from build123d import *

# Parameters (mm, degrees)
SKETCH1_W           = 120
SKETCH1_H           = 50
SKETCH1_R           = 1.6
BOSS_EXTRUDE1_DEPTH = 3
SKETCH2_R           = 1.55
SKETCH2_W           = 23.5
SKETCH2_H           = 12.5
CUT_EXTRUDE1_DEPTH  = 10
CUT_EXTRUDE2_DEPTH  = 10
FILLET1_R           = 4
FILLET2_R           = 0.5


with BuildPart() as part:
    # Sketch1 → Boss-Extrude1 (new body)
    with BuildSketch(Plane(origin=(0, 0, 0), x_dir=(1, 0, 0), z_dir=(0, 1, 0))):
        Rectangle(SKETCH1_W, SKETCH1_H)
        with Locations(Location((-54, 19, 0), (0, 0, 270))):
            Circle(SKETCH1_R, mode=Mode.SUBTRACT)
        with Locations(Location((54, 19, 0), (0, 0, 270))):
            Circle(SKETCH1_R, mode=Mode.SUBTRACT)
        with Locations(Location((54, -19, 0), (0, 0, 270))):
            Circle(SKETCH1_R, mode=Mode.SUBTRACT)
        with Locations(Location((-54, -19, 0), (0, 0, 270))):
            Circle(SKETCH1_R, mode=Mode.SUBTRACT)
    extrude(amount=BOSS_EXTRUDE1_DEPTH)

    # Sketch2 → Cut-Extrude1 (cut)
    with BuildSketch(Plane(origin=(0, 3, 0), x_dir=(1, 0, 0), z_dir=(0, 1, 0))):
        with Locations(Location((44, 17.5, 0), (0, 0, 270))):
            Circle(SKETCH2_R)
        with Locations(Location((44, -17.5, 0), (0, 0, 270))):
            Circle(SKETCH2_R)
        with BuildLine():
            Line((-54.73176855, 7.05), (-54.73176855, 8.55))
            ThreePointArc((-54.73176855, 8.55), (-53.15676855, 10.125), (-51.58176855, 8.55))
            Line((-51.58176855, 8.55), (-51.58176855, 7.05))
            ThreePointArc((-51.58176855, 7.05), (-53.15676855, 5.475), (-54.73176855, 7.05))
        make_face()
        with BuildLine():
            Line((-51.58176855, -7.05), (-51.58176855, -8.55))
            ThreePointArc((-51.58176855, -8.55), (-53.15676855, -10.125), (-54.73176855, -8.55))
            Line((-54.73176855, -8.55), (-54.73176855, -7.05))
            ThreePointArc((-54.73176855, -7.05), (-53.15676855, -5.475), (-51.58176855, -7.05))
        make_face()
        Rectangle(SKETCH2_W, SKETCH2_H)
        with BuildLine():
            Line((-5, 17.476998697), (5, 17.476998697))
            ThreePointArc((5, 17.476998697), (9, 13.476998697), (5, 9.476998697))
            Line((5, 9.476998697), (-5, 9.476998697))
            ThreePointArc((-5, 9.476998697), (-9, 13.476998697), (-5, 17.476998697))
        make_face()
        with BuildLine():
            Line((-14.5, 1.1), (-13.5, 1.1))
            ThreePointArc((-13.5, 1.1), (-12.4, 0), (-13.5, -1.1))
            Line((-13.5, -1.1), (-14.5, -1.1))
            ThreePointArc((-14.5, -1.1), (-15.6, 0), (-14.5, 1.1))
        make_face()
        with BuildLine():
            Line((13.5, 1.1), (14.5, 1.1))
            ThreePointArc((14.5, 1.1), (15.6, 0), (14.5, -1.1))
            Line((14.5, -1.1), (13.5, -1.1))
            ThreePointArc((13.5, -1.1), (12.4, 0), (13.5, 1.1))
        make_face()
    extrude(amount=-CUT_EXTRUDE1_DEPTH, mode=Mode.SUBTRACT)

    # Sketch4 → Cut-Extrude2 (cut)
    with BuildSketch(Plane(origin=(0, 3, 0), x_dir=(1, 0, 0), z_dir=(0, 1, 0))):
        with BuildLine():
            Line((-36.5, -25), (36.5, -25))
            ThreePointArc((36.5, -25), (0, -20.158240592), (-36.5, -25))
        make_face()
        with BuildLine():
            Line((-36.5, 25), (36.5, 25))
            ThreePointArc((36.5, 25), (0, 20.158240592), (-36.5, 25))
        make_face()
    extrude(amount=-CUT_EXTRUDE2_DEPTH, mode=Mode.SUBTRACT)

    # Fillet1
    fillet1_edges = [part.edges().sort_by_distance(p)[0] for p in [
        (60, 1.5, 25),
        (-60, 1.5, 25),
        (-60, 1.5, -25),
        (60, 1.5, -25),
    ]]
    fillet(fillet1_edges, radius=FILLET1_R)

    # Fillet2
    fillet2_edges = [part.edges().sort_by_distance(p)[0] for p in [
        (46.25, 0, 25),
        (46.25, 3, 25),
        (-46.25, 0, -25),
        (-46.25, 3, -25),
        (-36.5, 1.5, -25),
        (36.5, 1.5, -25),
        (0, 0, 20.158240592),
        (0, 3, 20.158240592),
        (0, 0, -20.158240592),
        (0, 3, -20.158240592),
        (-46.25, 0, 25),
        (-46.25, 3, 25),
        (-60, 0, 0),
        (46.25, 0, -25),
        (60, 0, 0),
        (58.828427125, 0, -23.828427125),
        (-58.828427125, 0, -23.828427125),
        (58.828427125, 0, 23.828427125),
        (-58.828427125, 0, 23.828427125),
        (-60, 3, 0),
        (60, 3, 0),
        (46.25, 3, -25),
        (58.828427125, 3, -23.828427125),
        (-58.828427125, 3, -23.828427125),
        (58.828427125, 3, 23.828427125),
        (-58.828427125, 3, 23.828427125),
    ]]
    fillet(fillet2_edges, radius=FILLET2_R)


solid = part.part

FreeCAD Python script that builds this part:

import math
import FreeCAD as App
import Part
import Sketcher
from FreeCAD import Vector
Q = App.Units.Quantity


def edges_at(feature, points):
    """Names of the edges that pass closest to the given points."""
    edges = feature.Shape.Edges
    near = lambda p: min(range(len(edges)), key=lambda i: edges[i].distToShape(Part.Vertex(*p))[0])
    return sorted({f"Edge{near(p) + 1}" for p in points})


def add_polygon(sketch, points):
    """Adds a closed chain of lines whose ends are joined by coincident constraints."""
    first, n = sketch.GeometryCount, len(points)
    for a, b in zip(points, points[1:] + points[:1]):
        sketch.addGeometry(Part.LineSegment(App.Vector(*a, 0), App.Vector(*b, 0)), False)
    for i in range(n):
        sketch.addConstraint(Sketcher.Constraint("Coincident", first + i, 2, first + (i + 1) % n, 1))

doc = App.newDocument("Part")
body = doc.addObject("PartDesign::Body", "Body")

# Sketch on XZ plane
sketch1 = doc.addObject("Sketcher::SketchObject", "Sketch")
body.addObject(sketch1)
sketch1.AttachmentSupport = (doc.XZ_Plane, [""])
sketch1.MapMode = "FlatFace"
add_polygon(sketch1, [(-60, -25), (-60, 25), (60, 25), (60, -25)])  # lines 0-3
sketch1.addGeometry(Part.Circle(Vector(-54, 19, 0), Vector(0, 0, 1), 1.6), False)  # 4
sketch1.addGeometry(Part.Circle(Vector(54, 19, 0), Vector(0, 0, 1), 1.6), False)  # 5
sketch1.addGeometry(Part.Circle(Vector(-54, -19, 0), Vector(0, 0, 1), 1.6), False)  # 6
sketch1.addGeometry(Part.Circle(Vector(54, -19, 0), Vector(0, 0, 1), 1.6), False)  # 7
sketch1.addConstraint(Sketcher.Constraint("Vertical", 0))
sketch1.addConstraint(Sketcher.Constraint("Horizontal", 1))
sketch1.addConstraint(Sketcher.Constraint("Vertical", 2))
sketch1.addConstraint(Sketcher.Constraint("Horizontal", 3))
sketch1.addConstraint(Sketcher.Constraint("Equal", 4, 5))
sketch1.addConstraint(Sketcher.Constraint("Equal", 5, 6))
sketch1.addConstraint(Sketcher.Constraint("Equal", 6, 7))
sketch1.addConstraint(Sketcher.Constraint("Symmetric", 5, 3, 6, 3, -1, 1))
sketch1.addConstraint(Sketcher.Constraint("Symmetric", 4, 3, 7, 3, -1, 1))
sketch1.addConstraint(Sketcher.Constraint("Symmetric", 0, 2, 2, 2, -1, 1))
sketch1.addConstraint(Sketcher.Constraint("Symmetric", 4, 3, 5, 3, -2))
sketch1.addConstraint(Sketcher.Constraint("Diameter", 4, Q("3.2 mm")))
sketch1.addConstraint(Sketcher.Constraint("DistanceX", 1, 1, 1, 2, Q("120 mm")))
sketch1.addConstraint(Sketcher.Constraint("DistanceY", 0, 1, 0, 2, Q("50 mm")))
sketch1.addConstraint(Sketcher.Constraint("DistanceX", 4, 3, -1, 1, Q("54 mm")))
sketch1.addConstraint(Sketcher.Constraint("DistanceY", -1, 1, 4, 3, Q("19 mm")))
pad1 = doc.addObject("PartDesign::Pad", "Pad")
body.addObject(pad1)
pad1.Profile = sketch1
pad1.Length = 3
pad1.Reversed = True

# Sketch on XZ plane
sketch2 = doc.addObject("Sketcher::SketchObject", "Sketch001")
body.addObject(sketch2)
sketch2.AttachmentSupport = (doc.XZ_Plane, [""])
sketch2.MapMode = "FlatFace"
sketch2.AttachmentOffset = App.Placement(Vector(0, 0, -3), App.Rotation())
sketch2.addGeometry(Part.Circle(Vector(44, -17.5, 0), Vector(0, 0, 1), 1.6), False)  # 0
sketch2.addGeometry(Part.Circle(Vector(44, 17.5, 0), Vector(0, 0, 1), 1.6), False)  # 1
sketch2.addGeometry(Part.LineSegment(Vector(-54.7, -8.6, 0), Vector(-54.7, -7, 0)), False)  # 2
sketch2.addGeometry(Part.ArcOfCircle(Part.Circle(Vector(-53.2, -7, 0), Vector(0, 0, 1), 1.6), math.radians(0), math.radians(180)), False)  # 3
sketch2.addGeometry(Part.LineSegment(Vector(-51.6, -7, 0), Vector(-51.6, -8.6, 0)), False)  # 4
sketch2.addGeometry(Part.ArcOfCircle(Part.Circle(Vector(-53.2, -8.6, 0), Vector(0, 0, 1), 1.6), math.radians(180), math.radians(360)), False)  # 5
sketch2.addGeometry(Part.LineSegment(Vector(-51.6, 8.6, 0), Vector(-51.6, 7, 0)), False)  # 6
sketch2.addGeometry(Part.ArcOfCircle(Part.Circle(Vector(-53.2, 7, 0), Vector(0, 0, 1), 1.6), math.radians(180), math.radians(360)), False)  # 7
sketch2.addGeometry(Part.LineSegment(Vector(-54.7, 7, 0), Vector(-54.7, 8.6, 0)), False)  # 8
sketch2.addGeometry(Part.ArcOfCircle(Part.Circle(Vector(-53.2, 8.6, 0), Vector(0, 0, 1), 1.6), math.radians(0), math.radians(180)), False)  # 9
add_polygon(sketch2, [(-11.8, -6.2), (-11.8, 6.2), (11.8, 6.2), (11.8, -6.2)])  # lines 10-13
sketch2.addGeometry(Part.LineSegment(Vector(5, -17.5, 0), Vector(-5, -17.5, 0)), False)  # 14
sketch2.addGeometry(Part.ArcOfCircle(Part.Circle(Vector(-5, -13.5, 0), Vector(0, 0, 1), 4), math.radians(90), math.radians(270)), False)  # 15
sketch2.addGeometry(Part.LineSegment(Vector(-5, -9.5, 0), Vector(5, -9.5, 0)), False)  # 16
sketch2.addGeometry(Part.ArcOfCircle(Part.Circle(Vector(5, -13.5, 0), Vector(0, 0, 1), 4), math.radians(-90), math.radians(90)), False)  # 17
sketch2.addGeometry(Part.LineSegment(Vector(-13.5, -1.1, 0), Vector(-14.5, -1.1, 0)), False)  # 18
sketch2.addGeometry(Part.ArcOfCircle(Part.Circle(Vector(-14.5, 0, 0), Vector(0, 0, 1), 1.1), math.radians(90), math.radians(270)), False)  # 19
sketch2.addGeometry(Part.LineSegment(Vector(-14.5, 1.1, 0), Vector(-13.5, 1.1, 0)), False)  # 20
sketch2.addGeometry(Part.ArcOfCircle(Part.Circle(Vector(-13.5, 0, 0), Vector(0, 0, 1), 1.1), math.radians(-90), math.radians(90)), False)  # 21
sketch2.addGeometry(Part.LineSegment(Vector(14.5, -1.1, 0), Vector(13.5, -1.1, 0)), False)  # 22
sketch2.addGeometry(Part.ArcOfCircle(Part.Circle(Vector(13.5, 0, 0), Vector(0, 0, 1), 1.1), math.radians(90), math.radians(270)), False)  # 23
sketch2.addGeometry(Part.LineSegment(Vector(13.5, 1.1, 0), Vector(14.5, 1.1, 0)), False)  # 24
sketch2.addGeometry(Part.ArcOfCircle(Part.Circle(Vector(14.5, 0, 0), Vector(0, 0, 1), 1.1), math.radians(-90), math.radians(90)), False)  # 25
sketch2.addConstraint(Sketcher.Constraint("Tangent", 2, 2, 3, 2))
sketch2.addConstraint(Sketcher.Constraint("Tangent", 3, 1, 4, 1))
sketch2.addConstraint(Sketcher.Constraint("Tangent", 4, 2, 5, 2))
sketch2.addConstraint(Sketcher.Constraint("Tangent", 5, 1, 2, 1))
sketch2.addConstraint(Sketcher.Constraint("Tangent", 6, 2, 7, 2))
sketch2.addConstraint(Sketcher.Constraint("Tangent", 7, 1, 8, 1))
sketch2.addConstraint(Sketcher.Constraint("Tangent", 8, 2, 9, 2))
sketch2.addConstraint(Sketcher.Constraint("Tangent", 9, 1, 6, 1))
sketch2.addConstraint(Sketcher.Constraint("Tangent", 14, 2, 15, 2))
sketch2.addConstraint(Sketcher.Constraint("Tangent", 15, 1, 16, 1))
sketch2.addConstraint(Sketcher.Constraint("Tangent", 16, 2, 17, 2))
sketch2.addConstraint(Sketcher.Constraint("Tangent", 17, 1, 14, 1))
sketch2.addConstraint(Sketcher.Constraint("Tangent", 18, 2, 19, 2))
sketch2.addConstraint(Sketcher.Constraint("Tangent", 19, 1, 20, 1))
sketch2.addConstraint(Sketcher.Constraint("Tangent", 20, 2, 21, 2))
sketch2.addConstraint(Sketcher.Constraint("Tangent", 21, 1, 18, 1))
sketch2.addConstraint(Sketcher.Constraint("Tangent", 22, 2, 23, 2))
sketch2.addConstraint(Sketcher.Constraint("Tangent", 23, 1, 24, 1))
sketch2.addConstraint(Sketcher.Constraint("Tangent", 24, 2, 25, 2))
sketch2.addConstraint(Sketcher.Constraint("Tangent", 25, 1, 22, 1))
sketch2.addConstraint(Sketcher.Constraint("Vertical", 2))
sketch2.addConstraint(Sketcher.Constraint("Vertical", 4))
sketch2.addConstraint(Sketcher.Constraint("Vertical", 6))
sketch2.addConstraint(Sketcher.Constraint("Vertical", 8))
sketch2.addConstraint(Sketcher.Constraint("Vertical", 10))
sketch2.addConstraint(Sketcher.Constraint("Horizontal", 11))
sketch2.addConstraint(Sketcher.Constraint("Vertical", 12))
sketch2.addConstraint(Sketcher.Constraint("Horizontal", 13))
sketch2.addConstraint(Sketcher.Constraint("Horizontal", 14))
sketch2.addConstraint(Sketcher.Constraint("Horizontal", 16))
sketch2.addConstraint(Sketcher.Constraint("Horizontal", 18))
sketch2.addConstraint(Sketcher.Constraint("Horizontal", 20))
sketch2.addConstraint(Sketcher.Constraint("Horizontal", 22))
sketch2.addConstraint(Sketcher.Constraint("Horizontal", 24))
sketch2.addConstraint(Sketcher.Constraint("Equal", 0, 1))
sketch2.addConstraint(Sketcher.Constraint("Equal", 5, 7))
sketch2.addConstraint(Sketcher.Constraint("Equal", 21, 23))
sketch2.addConstraint(Sketcher.Constraint("Symmetric", 21, 3, 23, 3, -1, 1))
sketch2.addConstraint(Sketcher.Constraint("Symmetric", 10, 2, 12, 2, -1, 1))
sketch2.addConstraint(Sketcher.Constraint("Symmetric", 19, 3, 25, 3, -2))
sketch2.addConstraint(Sketcher.Constraint("Symmetric", 0, 3, 1, 3, -1))
sketch2.addConstraint(Sketcher.Constraint("Symmetric", 3, 3, 7, 3, -1))
sketch2.addConstraint(Sketcher.Constraint("Equal", 4, 6))
sketch2.addConstraint(Sketcher.Constraint("Radius", 15, Q("4 mm")))
sketch2.addConstraint(Sketcher.Constraint("Diameter", 0, Q("3.1 mm")))
sketch2.addConstraint(Sketcher.Constraint("Radius", 19, Q("1.1 mm")))
sketch2.addConstraint(Sketcher.Constraint("DistanceX", 14, 2, 14, 1, Q("10 mm")))
sketch2.addConstraint(Sketcher.Constraint("DistanceX", 18, 2, 18, 1, Q("1 mm")))
sketch2.addConstraint(Sketcher.Constraint("DistanceX", 11, 1, 11, 2, Q("23.5 mm")))
sketch2.addConstraint(Sketcher.Constraint("DistanceY", 2, 1, 2, 2, Q("1.5 mm")))
sketch2.addConstraint(Sketcher.Constraint("DistanceY", 10, 1, 10, 2, Q("12.5 mm")))
sketch2.addConstraint(Sketcher.Constraint("DistanceX", -1, 1, 0, 3, Q("44 mm")))
sketch2.addConstraint(Sketcher.Constraint("DistanceX", 15, 3, -1, 1, Q("5 mm")))
sketch2.addConstraint(Sketcher.Constraint("Radius", 3, Q("1.575 mm")))
sketch2.addConstraint(Sketcher.Constraint("DistanceY", 0, 3, 1, 3, Q("35 mm")))
sketch2.addConstraint(Sketcher.Constraint("DistanceX", 21, 3, 23, 3, Q("27 mm")))
sketch2.addConstraint(Sketcher.Constraint("DistanceY", 3, 3, 7, 3, Q("14.1 mm")))
sketch2.addConstraint(Sketcher.Constraint("DistanceY", 15, 3, -1, 1, Q("13.476999 mm")))
sketch2.addConstraint(Sketcher.Constraint("DistanceX", 3, 3, -1, 1, Q("53.156769 mm")))
pocket1 = doc.addObject("PartDesign::Pocket", "Pocket")
body.addObject(pocket1)
pocket1.Profile = sketch2
pocket1.Length = 10
pocket1.Reversed = True

# Sketch on XZ plane
sketch3 = doc.addObject("Sketcher::SketchObject", "Sketch002")
body.addObject(sketch3)
sketch3.AttachmentSupport = (doc.XZ_Plane, [""])
sketch3.MapMode = "FlatFace"
sketch3.AttachmentOffset = App.Placement(Vector(0, 0, -3), App.Rotation())
sketch3.addGeometry(Part.LineSegment(Vector(-36, 25, 0), Vector(36, 25, 0)), False)
sketch3.addGeometry(Part.ArcOfCircle(Part.Circle(Vector(0, 160, 0), Vector(0, 0, 1), 140), math.radians(-105), math.radians(-75)), False)
sketch3.addGeometry(Part.LineSegment(Vector(36, -25, 0), Vector(-36, -25, 0)), False)
sketch3.addGeometry(Part.ArcOfCircle(Part.Circle(Vector(0, -160, 0), Vector(0, 0, 1), 140), math.radians(75), math.radians(105)), False)
sketch3.addConstraint(Sketcher.Constraint("Coincident", 0, 1, 1, 1))
sketch3.addConstraint(Sketcher.Constraint("Coincident", 1, 2, 0, 2))
sketch3.addConstraint(Sketcher.Constraint("Coincident", 2, 1, 3, 1))
sketch3.addConstraint(Sketcher.Constraint("Coincident", 3, 2, 2, 2))
sketch3.addConstraint(Sketcher.Constraint("Horizontal", 0))
sketch3.addConstraint(Sketcher.Constraint("Horizontal", 2))
sketch3.addConstraint(Sketcher.Constraint("Equal", 1, 3))
sketch3.addConstraint(Sketcher.Constraint("Symmetric", 1, 3, 3, 3, -1, 1))
sketch3.addConstraint(Sketcher.Constraint("Symmetric", 1, 2, 2, 1, -1))
sketch3.addConstraint(Sketcher.Constraint("Radius", 1, Q("140 mm")))
sketch3.addConstraint(Sketcher.Constraint("DistanceX", 0, 1, 0, 2, Q("73 mm")))
sketch3.addConstraint(Sketcher.Constraint("DistanceY", -1, 1, 0, 1, Q("25 mm")))
pocket2 = doc.addObject("PartDesign::Pocket", "Pocket001")
body.addObject(pocket2)
pocket2.Profile = sketch3
pocket2.Length = 10
pocket2.Reversed = True
doc.recompute()

fillet = doc.addObject("PartDesign::Fillet", "Fillet")
body.addObject(fillet)
fillet.Base = (pocket2, edges_at(pocket2, [
    (60, 1.5, 25),
    (-60, 1.5, 25),
    (-60, 1.5, -25),
    (60, 1.5, -25),
]))
fillet.Radius = 4
doc.recompute()

fillet2 = doc.addObject("PartDesign::Fillet", "Fillet001")
body.addObject(fillet2)
fillet2.Base = (fillet, edges_at(fillet, [
    (46.25, 0, 25),
    (46.25, 3, 25),
    (-46.25, 0, -25),
    (-46.25, 3, -25),
    (-36.5, 1.5, -25),
    (36.5, 1.5, -25),
    (0, 0, 20.158),
    (0, 3, 20.158),
    (0, 0, -20.158),
    (0, 3, -20.158),
    (-46.25, 0, 25),
    (-46.25, 3, 25),
    (-60, 0, 0),
    (46.25, 0, -25),
    (60, 0, 0),
    (58.828, 0, -23.828),
    (-58.828, 0, -23.828),
    (58.828, 0, 23.828),
    (-58.828, 0, 23.828),
    (-60, 3, 0),
    (60, 3, 0),
    (46.25, 3, -25),
    (58.828, 3, -23.828),
    (-58.828, 3, -23.828),
    (58.828, 3, 23.828),
    (-58.828, 3, 23.828),
]))
fillet2.Radius = 0.5

doc.recompute()
